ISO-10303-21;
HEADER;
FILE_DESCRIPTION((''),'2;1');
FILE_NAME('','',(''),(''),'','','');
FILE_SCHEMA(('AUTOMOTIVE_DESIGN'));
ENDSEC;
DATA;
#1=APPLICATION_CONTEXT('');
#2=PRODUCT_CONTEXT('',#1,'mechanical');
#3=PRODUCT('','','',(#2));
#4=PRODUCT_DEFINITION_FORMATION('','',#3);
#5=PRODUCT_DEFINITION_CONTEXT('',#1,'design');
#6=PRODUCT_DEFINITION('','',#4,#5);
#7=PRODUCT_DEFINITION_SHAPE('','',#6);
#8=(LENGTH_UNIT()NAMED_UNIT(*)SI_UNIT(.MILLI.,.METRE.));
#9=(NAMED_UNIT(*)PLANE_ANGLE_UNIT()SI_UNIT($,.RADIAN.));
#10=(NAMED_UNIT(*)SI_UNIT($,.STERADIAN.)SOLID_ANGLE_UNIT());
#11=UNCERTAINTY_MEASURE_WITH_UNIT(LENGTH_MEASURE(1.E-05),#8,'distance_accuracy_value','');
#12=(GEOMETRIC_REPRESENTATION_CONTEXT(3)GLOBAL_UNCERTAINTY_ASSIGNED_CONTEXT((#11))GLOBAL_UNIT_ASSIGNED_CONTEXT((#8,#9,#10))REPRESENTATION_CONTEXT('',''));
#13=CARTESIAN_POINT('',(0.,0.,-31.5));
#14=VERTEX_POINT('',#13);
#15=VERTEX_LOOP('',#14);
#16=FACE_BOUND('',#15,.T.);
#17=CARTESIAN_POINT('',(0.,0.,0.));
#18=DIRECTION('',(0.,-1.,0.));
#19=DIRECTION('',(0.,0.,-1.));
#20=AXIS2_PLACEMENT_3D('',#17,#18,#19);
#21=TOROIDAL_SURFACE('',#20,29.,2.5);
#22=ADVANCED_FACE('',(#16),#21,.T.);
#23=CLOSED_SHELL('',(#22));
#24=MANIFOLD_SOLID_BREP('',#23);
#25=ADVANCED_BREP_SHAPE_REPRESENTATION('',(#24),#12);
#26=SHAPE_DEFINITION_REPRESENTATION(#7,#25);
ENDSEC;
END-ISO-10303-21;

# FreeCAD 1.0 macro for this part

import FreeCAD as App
import Part
import Sketcher
from FreeCAD import Vector
Q = App.Units.Quantity

doc = App.newDocument("Part")
body = doc.addObject("PartDesign::Body", "Body")

sketch1 = body.newObject("Sketcher::SketchObject", "Sketch")
sketch1.AttachmentSupport = (doc.getObject("XY_Plane"), [""])
sketch1.MapMode = "FlatFace"
sketch1.addGeometry(Part.Circle(Vector(29, 0, 0), Vector(0, 0, 1), 2.5), False)
sketch1.addConstraint([
    Sketcher.Constraint("PointOnObject", 0, 3, -1),
    Sketcher.Constraint("Diameter", 0, Q("5 mm")),
    Sketcher.Constraint("DistanceX", -1, 1, 0, 3, Q("29 mm")),
])
revolution = body.newObject("PartDesign::Revolution", "Revolution")
revolution.Profile = sketch1
revolution.ReferenceAxis = (sketch1, ["V_Axis"])
revolution.Angle = 360

doc.recompute()
